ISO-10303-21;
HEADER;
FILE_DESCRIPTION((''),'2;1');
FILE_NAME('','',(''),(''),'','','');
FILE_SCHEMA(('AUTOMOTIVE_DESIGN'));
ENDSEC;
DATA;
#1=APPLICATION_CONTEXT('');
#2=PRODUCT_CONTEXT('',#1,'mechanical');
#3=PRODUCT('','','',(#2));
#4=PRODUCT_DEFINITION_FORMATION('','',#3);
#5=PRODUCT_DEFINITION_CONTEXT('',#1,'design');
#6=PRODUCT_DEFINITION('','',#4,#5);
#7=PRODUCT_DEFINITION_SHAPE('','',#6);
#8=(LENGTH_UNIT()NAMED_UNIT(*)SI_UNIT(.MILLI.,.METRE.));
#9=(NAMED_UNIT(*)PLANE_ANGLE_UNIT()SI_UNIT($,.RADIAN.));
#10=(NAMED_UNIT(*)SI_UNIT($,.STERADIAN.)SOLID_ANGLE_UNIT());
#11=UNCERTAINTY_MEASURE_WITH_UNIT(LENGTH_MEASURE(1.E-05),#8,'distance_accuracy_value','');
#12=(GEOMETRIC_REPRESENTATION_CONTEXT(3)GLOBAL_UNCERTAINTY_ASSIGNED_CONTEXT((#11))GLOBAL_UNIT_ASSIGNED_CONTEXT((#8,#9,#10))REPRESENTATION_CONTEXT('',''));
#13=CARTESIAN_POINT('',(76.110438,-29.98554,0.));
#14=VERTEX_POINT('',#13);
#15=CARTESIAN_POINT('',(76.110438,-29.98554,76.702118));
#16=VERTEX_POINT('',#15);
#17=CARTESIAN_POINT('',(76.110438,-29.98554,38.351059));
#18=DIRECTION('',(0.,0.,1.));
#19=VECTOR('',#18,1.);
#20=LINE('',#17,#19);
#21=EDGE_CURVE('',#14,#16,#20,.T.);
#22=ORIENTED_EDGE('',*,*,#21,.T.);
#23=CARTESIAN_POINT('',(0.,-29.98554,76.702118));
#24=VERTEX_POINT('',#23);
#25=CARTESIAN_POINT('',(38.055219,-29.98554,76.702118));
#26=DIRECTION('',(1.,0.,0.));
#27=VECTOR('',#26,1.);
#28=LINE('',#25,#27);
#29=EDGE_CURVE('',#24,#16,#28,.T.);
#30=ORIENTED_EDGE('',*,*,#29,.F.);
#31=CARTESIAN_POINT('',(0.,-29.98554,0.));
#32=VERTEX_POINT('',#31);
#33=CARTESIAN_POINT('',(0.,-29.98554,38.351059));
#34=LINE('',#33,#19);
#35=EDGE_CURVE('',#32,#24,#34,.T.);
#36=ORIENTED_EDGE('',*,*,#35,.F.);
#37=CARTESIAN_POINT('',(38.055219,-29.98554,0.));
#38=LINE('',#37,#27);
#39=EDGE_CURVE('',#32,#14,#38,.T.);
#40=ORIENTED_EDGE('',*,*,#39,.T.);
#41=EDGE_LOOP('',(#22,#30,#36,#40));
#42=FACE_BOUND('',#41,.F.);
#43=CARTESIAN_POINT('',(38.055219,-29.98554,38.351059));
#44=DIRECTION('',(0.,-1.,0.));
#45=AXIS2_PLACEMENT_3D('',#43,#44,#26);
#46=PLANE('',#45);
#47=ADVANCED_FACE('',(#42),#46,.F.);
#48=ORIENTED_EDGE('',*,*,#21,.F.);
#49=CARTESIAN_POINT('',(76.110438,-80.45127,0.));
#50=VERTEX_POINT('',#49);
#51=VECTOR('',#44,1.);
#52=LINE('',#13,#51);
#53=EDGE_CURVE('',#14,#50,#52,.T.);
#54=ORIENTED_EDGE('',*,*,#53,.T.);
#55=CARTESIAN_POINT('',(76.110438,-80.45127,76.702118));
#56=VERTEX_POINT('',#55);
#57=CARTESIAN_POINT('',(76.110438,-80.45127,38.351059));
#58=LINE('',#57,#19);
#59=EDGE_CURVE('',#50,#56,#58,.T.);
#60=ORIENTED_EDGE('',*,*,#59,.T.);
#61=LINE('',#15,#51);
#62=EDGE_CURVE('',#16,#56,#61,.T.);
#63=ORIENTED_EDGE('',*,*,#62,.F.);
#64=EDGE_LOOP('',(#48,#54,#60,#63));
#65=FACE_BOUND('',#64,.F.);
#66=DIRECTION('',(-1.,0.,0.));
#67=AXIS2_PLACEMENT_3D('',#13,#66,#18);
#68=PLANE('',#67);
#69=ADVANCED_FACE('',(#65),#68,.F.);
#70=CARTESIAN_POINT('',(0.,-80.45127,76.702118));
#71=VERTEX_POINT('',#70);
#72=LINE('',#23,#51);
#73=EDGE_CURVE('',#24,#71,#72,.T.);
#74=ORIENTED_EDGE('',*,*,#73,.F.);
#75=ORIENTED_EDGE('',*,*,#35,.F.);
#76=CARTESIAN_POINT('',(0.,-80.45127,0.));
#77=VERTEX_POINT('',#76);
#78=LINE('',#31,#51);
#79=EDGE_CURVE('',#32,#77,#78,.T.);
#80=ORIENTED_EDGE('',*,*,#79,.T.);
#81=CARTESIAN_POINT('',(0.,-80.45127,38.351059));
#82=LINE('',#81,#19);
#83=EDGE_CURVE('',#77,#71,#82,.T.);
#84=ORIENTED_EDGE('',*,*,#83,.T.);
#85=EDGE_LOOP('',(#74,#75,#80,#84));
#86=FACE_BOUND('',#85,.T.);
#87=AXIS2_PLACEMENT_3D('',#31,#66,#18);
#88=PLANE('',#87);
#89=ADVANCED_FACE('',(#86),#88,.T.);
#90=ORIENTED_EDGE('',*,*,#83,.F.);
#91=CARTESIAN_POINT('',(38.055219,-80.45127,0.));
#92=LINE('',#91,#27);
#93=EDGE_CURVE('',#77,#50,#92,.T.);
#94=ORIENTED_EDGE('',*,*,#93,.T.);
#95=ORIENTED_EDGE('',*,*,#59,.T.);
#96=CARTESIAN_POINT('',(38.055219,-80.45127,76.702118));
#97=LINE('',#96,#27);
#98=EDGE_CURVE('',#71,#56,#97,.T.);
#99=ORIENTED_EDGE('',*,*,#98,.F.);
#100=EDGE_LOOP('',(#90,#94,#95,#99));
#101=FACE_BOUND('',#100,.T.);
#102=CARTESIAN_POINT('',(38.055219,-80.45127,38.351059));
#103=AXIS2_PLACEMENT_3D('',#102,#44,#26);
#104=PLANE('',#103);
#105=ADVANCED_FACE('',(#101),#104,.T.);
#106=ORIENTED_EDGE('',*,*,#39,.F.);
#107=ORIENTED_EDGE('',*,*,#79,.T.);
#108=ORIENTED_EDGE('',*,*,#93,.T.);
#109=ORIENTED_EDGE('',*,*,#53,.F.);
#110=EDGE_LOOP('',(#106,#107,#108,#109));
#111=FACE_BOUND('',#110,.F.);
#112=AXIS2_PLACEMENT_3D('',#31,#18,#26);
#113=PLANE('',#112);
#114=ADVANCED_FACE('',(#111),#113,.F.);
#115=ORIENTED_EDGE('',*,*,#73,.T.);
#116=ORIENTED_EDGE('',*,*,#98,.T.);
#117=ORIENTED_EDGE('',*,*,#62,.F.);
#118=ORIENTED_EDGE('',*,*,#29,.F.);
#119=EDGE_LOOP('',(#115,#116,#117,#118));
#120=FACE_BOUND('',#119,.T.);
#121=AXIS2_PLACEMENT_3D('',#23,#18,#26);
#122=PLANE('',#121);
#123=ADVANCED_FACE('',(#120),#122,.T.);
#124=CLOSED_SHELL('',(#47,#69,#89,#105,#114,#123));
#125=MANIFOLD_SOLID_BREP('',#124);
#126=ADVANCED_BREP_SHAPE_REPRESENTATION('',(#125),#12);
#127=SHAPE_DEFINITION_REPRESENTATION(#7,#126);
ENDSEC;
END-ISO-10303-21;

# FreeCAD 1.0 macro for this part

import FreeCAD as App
import Part
import Sketcher
from FreeCAD import Vector

doc = App.newDocument("Part")
body = doc.addObject("PartDesign::Body", "Body")

# Sketch on XZ plane
sketch1 = doc.addObject("Sketcher::SketchObject", "Sketch")
body.addObject(sketch1)
sketch1.AttachmentSupport = (doc.XZ_Plane, [""])
sketch1.MapMode = "FlatFace"
sketch1.AttachmentOffset = App.Placement(Vector(0, 0, 29.98554), App.Rotation())
sketch1.addGeometry([
    Part.LineSegment(Vector(0, 76.702118, 0), Vector(0, 0, 0)),
    Part.LineSegment(Vector(0, 0, 0), Vector(76.110438, 0, 0)),
    Part.LineSegment(Vector(76.110438, 0, 0), Vector(76.110438, 76.702118, 0)),
    Part.LineSegment(Vector(76.110438, 76.702118, 0), Vector(0, 76.702118, 0)),
], False)
sketch1.addConstraint([
    Sketcher.Constraint("Coincident", 0, 2, 1, 1),
    Sketcher.Constraint("Coincident", 1, 2, 2, 1),
    Sketcher.Constraint("Coincident", 2, 2, 3, 1),
    Sketcher.Constraint("Coincident", 3, 2, 0, 1),
    Sketcher.Constraint("Vertical", 0),
    Sketcher.Constraint("Horizontal", 1),
    Sketcher.Constraint("Vertical", 2),
    Sketcher.Constraint("Horizontal", 3),
    Sketcher.Constraint("Coincident", 0, 2, -1, 1),
    Sketcher.Constraint("DistanceX", 1, 1, 1, 2, 76.110438),
    Sketcher.Constraint("DistanceY", 0, 2, 0, 1, 76.702118),
])
pad1 = doc.addObject("PartDesign::Pad", "Pad")
body.addObject(pad1)
pad1.Profile = sketch1
pad1.Length = 50.46573

doc.recompute()
